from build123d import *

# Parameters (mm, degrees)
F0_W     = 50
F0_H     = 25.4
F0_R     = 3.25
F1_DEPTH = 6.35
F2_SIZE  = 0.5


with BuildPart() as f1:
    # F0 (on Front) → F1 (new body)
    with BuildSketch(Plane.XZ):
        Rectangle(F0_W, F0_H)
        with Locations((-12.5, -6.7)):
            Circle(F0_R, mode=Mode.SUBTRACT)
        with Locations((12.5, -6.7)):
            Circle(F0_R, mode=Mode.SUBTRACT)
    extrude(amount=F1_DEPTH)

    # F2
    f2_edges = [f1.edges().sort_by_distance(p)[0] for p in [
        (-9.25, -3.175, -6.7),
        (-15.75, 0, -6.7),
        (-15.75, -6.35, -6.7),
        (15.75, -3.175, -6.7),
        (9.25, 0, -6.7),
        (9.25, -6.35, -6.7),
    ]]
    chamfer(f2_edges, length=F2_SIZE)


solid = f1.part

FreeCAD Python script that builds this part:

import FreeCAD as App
import Part
import Sketcher

V = App.Vector
Q = App.Units.Quantity


def edges_at(feature, points):
    """Names of the edges that pass closest to the given points."""
    edges = feature.Shape.Edges
    near = lambda p: min(range(len(edges)), key=lambda i: edges[i].distToShape(Part.Vertex(*p))[0])
    return sorted({f"Edge{near(p) + 1}" for p in points})


def add_polygon(sketch, points):
    """Adds a closed chain of lines whose ends are joined by coincident constraints."""
    first, n = sketch.GeometryCount, len(points)
    for a, b in zip(points, points[1:] + points[:1]):
        sketch.addGeometry(Part.LineSegment(App.Vector(*a, 0), App.Vector(*b, 0)), False)
    for i in range(n):
        sketch.addConstraint(Sketcher.Constraint("Coincident", first + i, 2, first + (i + 1) % n, 1))

doc = App.newDocument("Part")
params = doc.addObject("Spreadsheet::Sheet", "Params")
for row, (alias, value) in enumerate([
    ("sketch1_diameter", "6.5 mm"),
    ("sketch1_width", "50 mm"),
    ("sketch1_height", "25.4 mm"),
    ("pad1_length", "6.35 mm"),
    ("chamfer_size", "0.5 mm"),
], start=1):
    params.set(f"A{row}", alias)
    params.set(f"B{row}", "=" + value)
    params.setAlias(f"B{row}", alias)

body = doc.addObject("PartDesign::Body", "Body")

# Sketch on XZ plane
sketch1 = doc.addObject("Sketcher::SketchObject", "Sketch")
body.addObject(sketch1)
sketch1.AttachmentSupport = (doc.XZ_Plane, [""])
sketch1.MapMode = "FlatFace"
add_polygon(sketch1, [(-25, 12.7), (-25, -12.7), (25, -12.7), (25, 12.7)])  # lines 0-3
sketch1.addGeometry(Part.Circle(V(-12.5, -6.7, 0), V(0, 0, 1), 3.2), False)  # 4
sketch1.addGeometry(Part.Circle(V(12.5, -6.7, 0), V(0, 0, 1), 3.2), False)  # 5
sketch1.addConstraint(Sketcher.Constraint("Vertical", 0))
sketch1.addConstraint(Sketcher.Constraint("Horizontal", 1))
sketch1.addConstraint(Sketcher.Constraint("Vertical", 2))
sketch1.addConstraint(Sketcher.Constraint("Horizontal", 3))
sketch1.addConstraint(Sketcher.Constraint("Equal", 4, 5))
sketch1.addConstraint(Sketcher.Constraint("Symmetric", 0, 2, 2, 2, -1, 1))
sketch1.addConstraint(Sketcher.Constraint("Symmetric", 4, 3, 5, 3, -2))
sketch1.addConstraint(Sketcher.Constraint("Diameter", 4, Q("6.5 mm")))
sketch1.addConstraint(Sketcher.Constraint("DistanceX", 1, 1, 1, 2, Q("50 mm")))
sketch1.addConstraint(Sketcher.Constraint("DistanceY", 0, 2, 0, 1, Q("25.4 mm")))
sketch1.addConstraint(Sketcher.Constraint("DistanceX", 4, 3, 5, 3, Q("25 mm")))
sketch1.addConstraint(Sketcher.Constraint("DistanceY", 0, 2, 4, 3, Q("6 mm")))
sketch1.setExpression("Constraints[11]", "Params.sketch1_diameter")
sketch1.setExpression("Constraints[12]", "Params.sketch1_width")
sketch1.setExpression("Constraints[13]", "Params.sketch1_height")
pad1 = doc.addObject("PartDesign::Pad", "Pad")
body.addObject(pad1)
pad1.Profile = sketch1
pad1.setExpression("Length", "Params.pad1_length")
doc.recompute()

chamfer = doc.addObject("PartDesign::Chamfer", "Chamfer")
body.addObject(chamfer)
chamfer.Base = (pad1, edges_at(pad1, [
    (-9.25, -3.175, -6.7),
    (-15.75, 0, -6.7),
    (-15.75, -6.35, -6.7),
    (15.75, -3.175, -6.7),
    (9.25, 0, -6.7),
    (9.25, -6.35, -6.7),
]))
chamfer.setExpression("Size", "Params.chamfer_size")

doc.recompute()
